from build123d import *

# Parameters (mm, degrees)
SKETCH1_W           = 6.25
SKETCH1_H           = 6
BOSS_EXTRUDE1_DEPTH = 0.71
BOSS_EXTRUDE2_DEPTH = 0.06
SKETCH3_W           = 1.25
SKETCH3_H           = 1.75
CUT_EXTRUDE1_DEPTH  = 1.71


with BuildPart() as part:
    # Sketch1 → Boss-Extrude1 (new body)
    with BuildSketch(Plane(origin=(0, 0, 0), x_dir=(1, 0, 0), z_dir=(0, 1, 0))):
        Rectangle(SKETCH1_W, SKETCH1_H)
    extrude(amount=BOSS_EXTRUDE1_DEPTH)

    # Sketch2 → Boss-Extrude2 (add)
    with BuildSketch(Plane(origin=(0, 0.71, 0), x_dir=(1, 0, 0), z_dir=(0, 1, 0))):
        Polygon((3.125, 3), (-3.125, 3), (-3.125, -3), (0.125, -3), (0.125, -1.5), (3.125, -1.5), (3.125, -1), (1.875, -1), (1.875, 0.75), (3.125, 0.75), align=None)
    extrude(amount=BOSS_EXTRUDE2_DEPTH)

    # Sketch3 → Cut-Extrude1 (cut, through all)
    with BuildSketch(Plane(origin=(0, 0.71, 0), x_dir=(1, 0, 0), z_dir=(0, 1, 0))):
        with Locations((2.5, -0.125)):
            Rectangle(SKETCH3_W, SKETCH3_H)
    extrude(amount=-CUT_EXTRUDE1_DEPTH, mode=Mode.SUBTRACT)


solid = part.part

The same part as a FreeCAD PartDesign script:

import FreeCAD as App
import Part
import Sketcher
from FreeCAD import Vector
Q = App.Units.Quantity

doc = App.newDocument("Part")
body = doc.addObject("PartDesign::Body", "Body")

# Sketch on XZ plane
sketch1 = body.newObject("Sketcher::SketchObject", "Sketch")
sketch1.AttachmentSupport = (doc.getObject("XZ_Plane"), [""])
sketch1.MapMode = "FlatFace"
sketch1.addGeometry([
    Part.LineSegment(Vector(-3, -3, 0), Vector(-3, 3, 0)),
    Part.LineSegment(Vector(-3, 3, 0), Vector(3, 3, 0)),
    Part.LineSegment(Vector(3, 3, 0), Vector(3, -3, 0)),
    Part.LineSegment(Vector(3, -3, 0), Vector(-3, -3, 0)),
], False)
sketch1.addConstraint([
    Sketcher.Constraint("Coincident", 0, 2, 1, 1),
    Sketcher.Constraint("Coincident", 1, 2, 2, 1),
    Sketcher.Constraint("Coincident", 2, 2, 3, 1),
    Sketcher.Constraint("Coincident", 3, 2, 0, 1),
    Sketcher.Constraint("Vertical", 0),
    Sketcher.Constraint("Horizontal", 1),
    Sketcher.Constraint("Vertical", 2),
    Sketcher.Constraint("Horizontal", 3),
    Sketcher.Constraint("Symmetric", 0, 2, 2, 2, -1, 1),
    Sketcher.Constraint("DistanceY", 0, 1, 0, 2, Q("6 mm")),
    Sketcher.Constraint("DistanceX", 1, 1, 1, 2, Q("6.25 mm")),
])
pad1 = body.newObject("PartDesign::Pad", "Pad")
pad1.Profile = sketch1
pad1.Length = 0.71
pad1.Reversed = True

# Sketch on XZ plane
sketch2 = body.newObject("Sketcher::SketchObject", "Sketch001")
sketch2.AttachmentSupport = (doc.getObject("XZ_Plane"), [""])
sketch2.MapMode = "FlatFace"
sketch2.AttachmentOffset = App.Placement(Vector(0, 0, -0.71), App.Rotation())
sketch2.addGeometry([
    Part.LineSegment(Vector(3.1, -3, 0), Vector(-3.1, -3, 0)),  # 0
    Part.LineSegment(Vector(-3.1, -3, 0), Vector(-3.1, 3, 0)),  # 1
    Part.LineSegment(Vector(-3.1, 3, 0), Vector(0.1, 3, 0)),  # 2
    Part.LineSegment(Vector(0.1, 3, 0), Vector(0.1, 1.5, 0)),  # 3
    Part.LineSegment(Vector(0.1, 1.5, 0), Vector(3.1, 1.5, 0)),  # 4
    Part.LineSegment(Vector(3.1, 1.5, 0), Vector(3.1, 1, 0)),  # 5
    Part.LineSegment(Vector(3.1, 1, 0), Vector(1.9, 1, 0)),  # 6
    Part.LineSegment(Vector(1.9, 1, 0), Vector(1.9, -0.8, 0)),  # 7
    Part.LineSegment(Vector(1.9, -0.8, 0), Vector(3.1, -0.8, 0)),  # 8
    Part.LineSegment(Vector(3.1, -0.8, 0), Vector(3.1, -3, 0)),  # 9
], False)
sketch2.addConstraint([
    Sketcher.Constraint("Coincident", 0, 2, 1, 1),
    Sketcher.Constraint("Coincident", 1, 2, 2, 1),
    Sketcher.Constraint("Coincident", 2, 2, 3, 1),
    Sketcher.Constraint("Coincident", 3, 2, 4, 1),
    Sketcher.Constraint("Coincident", 4, 2, 5, 1),
    Sketcher.Constraint("Coincident", 5, 2, 6, 1),
    Sketcher.Constraint("Coincident", 6, 2, 7, 1),
    Sketcher.Constraint("Coincident", 7, 2, 8, 1),
    Sketcher.Constraint("Coincident", 8, 2, 9, 1),
    Sketcher.Constraint("Coincident", 9, 2, 0, 1),
    Sketcher.Constraint("Horizontal", 0),
    Sketcher.Constraint("Vertical", 1),
    Sketcher.Constraint("Horizontal", 2),
    Sketcher.Constraint("Vertical", 3),
    Sketcher.Constraint("Horizontal", 4),
    Sketcher.Constraint("Vertical", 5),
    Sketcher.Constraint("Horizontal", 6),
    Sketcher.Constraint("Vertical", 7),
    Sketcher.Constraint("Horizontal", 8),
    Sketcher.Constraint("Vertical", 9),
    Sketcher.Constraint("Symmetric", 1, 2, 9, 2, -1, 1),
    Sketcher.Constraint("Vertical", 5, 2, 8, 2),
    Sketcher.Constraint("DistanceX", 4, 1, 4, 2, Q("3 mm")),
    Sketcher.Constraint("DistanceY", 1, 1, 1, 2, Q("6 mm")),
    Sketcher.Constraint("DistanceY", 3, 2, 3, 1, Q("1.5 mm")),
    Sketcher.Constraint("DistanceY", 5, 2, 5, 1, Q("0.5 mm")),
    Sketcher.Constraint("DistanceX", 1, 2, 6, 2, Q("5 mm")),
    Sketcher.Constraint("DistanceX", 0, 2, 0, 1, Q("6.25 mm")),
    Sketcher.Constraint("DistanceY", 7, 2, 7, 1, Q("1.75 mm")),
])
pad2 = body.newObject("PartDesign::Pad", "Pad001")
pad2.Profile = sketch2
pad2.Length = 0.06
pad2.Reversed = True

# Sketch on XZ plane
sketch3 = body.newObject("Sketcher::SketchObject", "Sketch002")
sketch3.AttachmentSupport = (doc.getObject("XZ_Plane"), [""])
sketch3.MapMode = "FlatFace"
sketch3.AttachmentOffset = App.Placement(Vector(0, 0, -0.71), App.Rotation())
sketch3.addGeometry([
    Part.LineSegment(Vector(1.9, -0.8, 0), Vector(1.9, 1, 0)),
    Part.LineSegment(Vector(1.9, 1, 0), Vector(3.1, 1, 0)),
    Part.LineSegment(Vector(3.1, 1, 0), Vector(3.1, -0.8, 0)),
    Part.LineSegment(Vector(3.1, -0.8, 0), Vector(1.9, -0.8, 0)),
], False)
sketch3.addConstraint([
    Sketcher.Constraint("Coincident", 0, 2, 1, 1),
    Sketcher.Constraint("Coincident", 1, 2, 2, 1),
    Sketcher.Constraint("Coincident", 2, 2, 3, 1),
    Sketcher.Constraint("Coincident", 3, 2, 0, 1),
    Sketcher.Constraint("Vertical", 0),
    Sketcher.Constraint("Horizontal", 1),
    Sketcher.Constraint("Vertical", 2),
    Sketcher.Constraint("Horizontal", 3),
    Sketcher.Constraint("DistanceY", -1, 1, 0, 2, Q("1 mm")),
    Sketcher.Constraint("DistanceX", 1, 1, 1, 2, Q("1.25 mm")),
    Sketcher.Constraint("DistanceY", 0, 1, 0, 2, Q("1.75 mm")),
    Sketcher.Constraint("DistanceX", -1, 1, 0, 2, Q("1.875 mm")),
])
pocket1 = body.newObject("PartDesign::Pocket", "Pocket")
pocket1.Profile = sketch3
pocket1.Type = "ThroughAll"
pocket1.Reversed = True

doc.recompute()
